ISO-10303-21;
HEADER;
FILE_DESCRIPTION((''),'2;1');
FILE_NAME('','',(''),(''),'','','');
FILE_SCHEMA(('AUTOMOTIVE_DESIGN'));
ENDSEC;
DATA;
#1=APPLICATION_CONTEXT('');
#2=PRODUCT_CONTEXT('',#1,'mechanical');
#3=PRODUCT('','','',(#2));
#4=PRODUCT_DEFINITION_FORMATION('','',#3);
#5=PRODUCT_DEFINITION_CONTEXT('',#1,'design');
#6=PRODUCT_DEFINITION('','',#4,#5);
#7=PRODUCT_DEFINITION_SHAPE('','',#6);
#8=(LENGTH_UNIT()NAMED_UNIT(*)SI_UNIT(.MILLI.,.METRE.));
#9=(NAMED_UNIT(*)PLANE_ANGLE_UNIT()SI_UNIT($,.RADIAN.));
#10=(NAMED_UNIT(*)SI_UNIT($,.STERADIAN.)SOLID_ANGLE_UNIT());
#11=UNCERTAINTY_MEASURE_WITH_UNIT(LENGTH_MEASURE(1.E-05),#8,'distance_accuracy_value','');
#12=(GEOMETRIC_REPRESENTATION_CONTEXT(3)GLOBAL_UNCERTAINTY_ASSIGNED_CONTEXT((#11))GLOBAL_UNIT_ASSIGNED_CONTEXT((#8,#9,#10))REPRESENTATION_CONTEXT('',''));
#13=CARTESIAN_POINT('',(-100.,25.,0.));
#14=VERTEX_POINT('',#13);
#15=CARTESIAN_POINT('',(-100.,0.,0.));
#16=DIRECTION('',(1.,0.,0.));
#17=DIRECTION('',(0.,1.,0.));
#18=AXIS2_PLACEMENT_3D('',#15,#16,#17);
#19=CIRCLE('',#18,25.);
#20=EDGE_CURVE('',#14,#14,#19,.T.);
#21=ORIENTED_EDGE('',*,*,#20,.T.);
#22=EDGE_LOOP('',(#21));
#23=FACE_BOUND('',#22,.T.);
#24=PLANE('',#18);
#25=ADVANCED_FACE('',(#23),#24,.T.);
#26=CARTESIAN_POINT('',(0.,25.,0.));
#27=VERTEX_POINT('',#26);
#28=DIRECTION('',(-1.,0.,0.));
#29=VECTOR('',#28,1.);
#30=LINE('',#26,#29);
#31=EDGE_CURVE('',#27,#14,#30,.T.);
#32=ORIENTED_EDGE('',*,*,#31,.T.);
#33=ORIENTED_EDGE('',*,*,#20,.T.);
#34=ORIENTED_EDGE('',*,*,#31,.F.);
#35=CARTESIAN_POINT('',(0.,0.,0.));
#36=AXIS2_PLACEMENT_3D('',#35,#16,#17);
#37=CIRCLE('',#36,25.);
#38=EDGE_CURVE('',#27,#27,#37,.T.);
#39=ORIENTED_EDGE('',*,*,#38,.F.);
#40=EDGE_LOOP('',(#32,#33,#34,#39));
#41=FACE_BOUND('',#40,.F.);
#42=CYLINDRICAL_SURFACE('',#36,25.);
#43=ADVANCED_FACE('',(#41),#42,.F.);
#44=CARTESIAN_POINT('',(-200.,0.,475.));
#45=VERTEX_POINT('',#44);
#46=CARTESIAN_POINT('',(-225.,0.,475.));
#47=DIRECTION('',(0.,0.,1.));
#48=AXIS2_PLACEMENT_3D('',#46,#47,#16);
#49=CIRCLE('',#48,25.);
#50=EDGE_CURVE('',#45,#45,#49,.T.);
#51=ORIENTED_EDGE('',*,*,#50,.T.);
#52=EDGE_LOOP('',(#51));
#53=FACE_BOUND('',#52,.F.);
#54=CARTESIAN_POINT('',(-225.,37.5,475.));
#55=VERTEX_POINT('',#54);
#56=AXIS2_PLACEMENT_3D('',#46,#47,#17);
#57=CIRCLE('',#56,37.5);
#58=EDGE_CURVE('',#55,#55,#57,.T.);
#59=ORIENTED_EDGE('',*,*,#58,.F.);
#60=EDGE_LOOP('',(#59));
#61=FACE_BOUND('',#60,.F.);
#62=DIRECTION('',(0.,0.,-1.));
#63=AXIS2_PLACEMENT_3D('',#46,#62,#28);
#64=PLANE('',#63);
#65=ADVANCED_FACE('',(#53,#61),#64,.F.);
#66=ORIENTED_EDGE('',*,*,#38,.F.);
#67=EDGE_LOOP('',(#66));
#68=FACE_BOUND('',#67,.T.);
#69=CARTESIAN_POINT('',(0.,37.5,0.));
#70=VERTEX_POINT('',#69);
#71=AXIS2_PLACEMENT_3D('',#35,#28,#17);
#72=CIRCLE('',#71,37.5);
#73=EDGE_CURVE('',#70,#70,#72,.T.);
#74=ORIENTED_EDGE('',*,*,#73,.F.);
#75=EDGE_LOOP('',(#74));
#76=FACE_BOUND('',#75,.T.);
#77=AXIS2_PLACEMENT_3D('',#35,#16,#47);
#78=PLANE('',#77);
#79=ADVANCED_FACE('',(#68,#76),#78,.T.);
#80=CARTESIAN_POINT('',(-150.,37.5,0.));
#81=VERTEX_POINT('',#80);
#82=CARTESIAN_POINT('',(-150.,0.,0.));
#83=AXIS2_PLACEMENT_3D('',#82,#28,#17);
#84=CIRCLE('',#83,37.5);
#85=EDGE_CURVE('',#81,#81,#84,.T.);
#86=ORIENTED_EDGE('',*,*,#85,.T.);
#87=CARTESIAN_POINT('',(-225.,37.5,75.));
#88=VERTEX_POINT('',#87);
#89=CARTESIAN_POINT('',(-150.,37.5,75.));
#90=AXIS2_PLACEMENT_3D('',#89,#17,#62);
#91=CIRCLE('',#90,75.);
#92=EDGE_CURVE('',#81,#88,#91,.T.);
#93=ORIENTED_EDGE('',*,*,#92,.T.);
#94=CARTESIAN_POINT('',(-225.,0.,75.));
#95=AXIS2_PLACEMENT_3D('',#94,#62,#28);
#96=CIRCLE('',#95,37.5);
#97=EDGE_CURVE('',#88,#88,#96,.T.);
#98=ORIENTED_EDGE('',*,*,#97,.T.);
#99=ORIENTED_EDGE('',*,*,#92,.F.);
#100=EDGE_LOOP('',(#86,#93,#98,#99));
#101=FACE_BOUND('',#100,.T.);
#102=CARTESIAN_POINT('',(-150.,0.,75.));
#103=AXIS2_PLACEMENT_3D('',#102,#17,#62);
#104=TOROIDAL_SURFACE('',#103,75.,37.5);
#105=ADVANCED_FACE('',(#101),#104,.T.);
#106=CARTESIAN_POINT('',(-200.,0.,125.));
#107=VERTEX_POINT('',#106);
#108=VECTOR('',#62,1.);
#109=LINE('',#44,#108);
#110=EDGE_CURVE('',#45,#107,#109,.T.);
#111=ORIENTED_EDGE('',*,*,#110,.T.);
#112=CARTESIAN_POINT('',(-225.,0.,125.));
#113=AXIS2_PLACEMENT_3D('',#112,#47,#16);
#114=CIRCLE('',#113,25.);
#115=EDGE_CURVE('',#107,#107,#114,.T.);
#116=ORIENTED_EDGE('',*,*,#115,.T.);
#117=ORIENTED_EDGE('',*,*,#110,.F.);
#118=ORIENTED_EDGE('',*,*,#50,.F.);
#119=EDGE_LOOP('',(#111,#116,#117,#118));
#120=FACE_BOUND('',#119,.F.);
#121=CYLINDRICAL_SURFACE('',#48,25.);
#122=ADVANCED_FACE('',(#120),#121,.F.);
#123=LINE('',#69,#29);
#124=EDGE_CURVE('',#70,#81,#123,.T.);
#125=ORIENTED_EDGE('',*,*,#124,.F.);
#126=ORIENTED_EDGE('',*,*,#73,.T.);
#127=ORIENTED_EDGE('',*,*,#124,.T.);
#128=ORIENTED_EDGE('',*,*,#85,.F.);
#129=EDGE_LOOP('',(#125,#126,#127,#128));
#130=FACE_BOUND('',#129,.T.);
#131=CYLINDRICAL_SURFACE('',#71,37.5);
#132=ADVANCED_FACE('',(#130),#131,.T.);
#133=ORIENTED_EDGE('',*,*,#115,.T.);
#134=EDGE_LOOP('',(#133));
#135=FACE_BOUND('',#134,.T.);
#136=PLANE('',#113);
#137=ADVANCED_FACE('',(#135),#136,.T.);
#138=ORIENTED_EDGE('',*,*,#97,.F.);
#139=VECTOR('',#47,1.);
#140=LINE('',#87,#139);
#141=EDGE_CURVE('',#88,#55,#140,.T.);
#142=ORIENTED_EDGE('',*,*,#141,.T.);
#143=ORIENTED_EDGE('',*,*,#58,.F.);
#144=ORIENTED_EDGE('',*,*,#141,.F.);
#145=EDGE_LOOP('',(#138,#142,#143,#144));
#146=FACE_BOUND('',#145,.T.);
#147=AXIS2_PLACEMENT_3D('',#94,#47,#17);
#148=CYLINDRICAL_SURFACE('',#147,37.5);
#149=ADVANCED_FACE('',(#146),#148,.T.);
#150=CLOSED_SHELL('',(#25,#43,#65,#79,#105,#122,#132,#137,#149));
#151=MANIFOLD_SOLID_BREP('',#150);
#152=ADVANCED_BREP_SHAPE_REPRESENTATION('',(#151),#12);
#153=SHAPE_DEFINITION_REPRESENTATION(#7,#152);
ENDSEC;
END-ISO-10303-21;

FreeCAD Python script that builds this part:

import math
import FreeCAD as App
import Part
import Sketcher
from FreeCAD import Vector
Q = App.Units.Quantity

doc = App.newDocument("Part")
body = doc.addObject("PartDesign::Body", "Body")

sketch1 = body.newObject("Sketcher::SketchObject", "Sketch")
sketch1.AttachmentSupport = (doc.getObject("YZ_Plane"), [""])
sketch1.MapMode = "FlatFace"
sketch1.addGeometry(Part.Circle(Vector(0, 0, 0), Vector(0, 0, 1), 38), False)
sketch1.addConstraint(Sketcher.Constraint("Coincident", 0, 3, -1, 1))
sketch1.addConstraint(Sketcher.Constraint("Diameter", 0, Q("75 mm")))

sketch2 = body.newObject("Sketcher::SketchObject", "Sketch001")
sketch2.AttachmentSupport = (doc.getObject("XZ_Plane"), [""])
sketch2.MapMode = "FlatFace"
sketch2.addGeometry(Part.LineSegment(Vector(0, 0, 0), Vector(-150, 0, 0)), False)
sketch2.addGeometry(Part.ArcOfCircle(Part.Circle(Vector(-150, 75, 0), Vector(0, 0, 1), 75), math.radians(180), math.radians(270)), False)
sketch2.addGeometry(Part.LineSegment(Vector(-225, 75, 0), Vector(-225, 475, 0)), False)
sketch2.addConstraint(Sketcher.Constraint("Tangent", 0, 2, 1, 2))
sketch2.addConstraint(Sketcher.Constraint("Tangent", 1, 1, 2, 1))
sketch2.addConstraint(Sketcher.Constraint("Horizontal", 0))
sketch2.addConstraint(Sketcher.Constraint("Vertical", 2))
sketch2.addConstraint(Sketcher.Constraint("Coincident", 0, 1, -1, 1))
sketch2.addConstraint(Sketcher.Constraint("Radius", 1, Q("75 mm")))
sketch2.addConstraint(Sketcher.Constraint("DistanceX", 0, 2, 0, 1, Q("150 mm")))
sketch2.addConstraint(Sketcher.Constraint("DistanceY", 2, 1, 2, 2, Q("400 mm")))
doc.recompute()

additivepipe = body.newObject("PartDesign::AdditivePipe", "AdditivePipe")
additivepipe.Profile = sketch1
additivepipe.Spine = (sketch2, ["Edge1", "Edge2", "Edge3"])

sketch3 = body.newObject("Sketcher::SketchObject", "Sketch002")
sketch3.AttachmentSupport = (doc.getObject("XY_Plane"), [""])
sketch3.MapMode = "FlatFace"
sketch3.AttachmentOffset = App.Placement(Vector(0, 0, 475), App.Rotation())
sketch3.addGeometry(Part.Circle(Vector(-225, 0, 0), Vector(0, 0, 1), 25), False)
sketch3.addConstraint(Sketcher.Constraint("PointOnObject", 0, 3, -1))
sketch3.addConstraint(Sketcher.Constraint("Diameter", 0, Q("50 mm")))
sketch3.addConstraint(Sketcher.Constraint("DistanceX", 0, 3, -1, 1, Q("225 mm")))
pocket1 = body.newObject("PartDesign::Pocket", "Pocket")
pocket1.Profile = sketch3
pocket1.Length = 350

sketch4 = body.newObject("Sketcher::SketchObject", "Sketch003")
sketch4.AttachmentSupport = (doc.getObject("YZ_Plane"), [""])
sketch4.MapMode = "FlatFace"
sketch4.addGeometry(Part.Circle(Vector(0, 0, 0), Vector(0, 0, 1), 25), False)
sketch4.addConstraint(Sketcher.Constraint("Coincident", 0, 3, -1, 1))
sketch4.addConstraint(Sketcher.Constraint("Diameter", 0, Q("50 mm")))
pocket2 = body.newObject("PartDesign::Pocket", "Pocket001")
pocket2.Profile = sketch4
pocket2.Length = 100

doc.recompute()
